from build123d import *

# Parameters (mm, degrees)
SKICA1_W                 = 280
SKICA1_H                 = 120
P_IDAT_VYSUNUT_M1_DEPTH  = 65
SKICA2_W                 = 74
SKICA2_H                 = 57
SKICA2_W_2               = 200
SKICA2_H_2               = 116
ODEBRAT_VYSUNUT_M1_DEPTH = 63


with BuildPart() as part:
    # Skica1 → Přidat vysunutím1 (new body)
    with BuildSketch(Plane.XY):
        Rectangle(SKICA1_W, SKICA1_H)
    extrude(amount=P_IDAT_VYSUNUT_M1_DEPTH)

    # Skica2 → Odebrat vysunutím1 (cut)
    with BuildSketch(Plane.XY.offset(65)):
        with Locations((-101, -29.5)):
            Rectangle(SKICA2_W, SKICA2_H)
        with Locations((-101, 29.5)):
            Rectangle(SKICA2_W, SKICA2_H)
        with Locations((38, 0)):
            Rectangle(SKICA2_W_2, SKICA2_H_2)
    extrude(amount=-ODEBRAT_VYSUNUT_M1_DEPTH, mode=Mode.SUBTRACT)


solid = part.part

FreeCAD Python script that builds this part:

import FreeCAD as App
import Part
import Sketcher
Q = App.Units.Quantity


def add_polygon(sketch, points):
    """Adds a closed chain of lines whose ends are joined by coincident constraints."""
    first, n = sketch.GeometryCount, len(points)
    for a, b in zip(points, points[1:] + points[:1]):
        sketch.addGeometry(Part.LineSegment(App.Vector(*a, 0), App.Vector(*b, 0)), False)
    for i in range(n):
        sketch.addConstraint(Sketcher.Constraint("Coincident", first + i, 2, first + (i + 1) % n, 1))

doc = App.newDocument("Part")
body = doc.addObject("PartDesign::Body", "Body")

sketch1 = body.newObject("Sketcher::SketchObject", "Sketch")
sketch1.AttachmentSupport = (doc.getObject("XY_Plane"), [""])
sketch1.MapMode = "FlatFace"
add_polygon(sketch1, [(-140, 60), (-140, -60), (140, -60), (140, 60)])
sketch1.addConstraint([
    Sketcher.Constraint("Vertical", 0),
    Sketcher.Constraint("Horizontal", 1),
    Sketcher.Constraint("Vertical", 2),
    Sketcher.Constraint("Horizontal", 3),
    Sketcher.Constraint("Symmetric", 0, 2, 2, 2, -1, 1),
    Sketcher.Constraint("DistanceX", 1, 1, 1, 2, Q("280 mm")),
    Sketcher.Constraint("DistanceY", 0, 2, 0, 1, Q("120 mm")),
])
pad1 = body.newObject("PartDesign::Pad", "Pad")
pad1.Profile = sketch1
pad1.Length = 65

sketch2 = body.newObject("Sketcher::SketchObject", "Sketch001")
sketch2.AttachmentSupport = (doc.getObject("XY_Plane"), [""])
sketch2.MapMode = "FlatFace"
sketch2.AttachmentOffset = App.Placement(App.Vector(0, 0, 65), App.Rotation())
add_polygon(sketch2, [(-138, -1), (-138, -58), (-64, -58), (-64, -1)])
add_polygon(sketch2, [(-138, 58), (-138, 1), (-64, 1), (-64, 58)])
add_polygon(sketch2, [(-62, 58), (-62, -58), (138, -58), (138, 58)])
sketch2.addConstraint([
    Sketcher.Constraint("Vertical", 0),
    Sketcher.Constraint("Horizontal", 1),
    Sketcher.Constraint("Vertical", 2),
    Sketcher.Constraint("Horizontal", 3),
    Sketcher.Constraint("Vertical", 4),
    Sketcher.Constraint("Horizontal", 5),
    Sketcher.Constraint("Vertical", 6),
    Sketcher.Constraint("Horizontal", 7),
    Sketcher.Constraint("Vertical", 8),
    Sketcher.Constraint("Horizontal", 9),
    Sketcher.Constraint("Vertical", 10),
    Sketcher.Constraint("Horizontal", 11),
    Sketcher.Constraint("Symmetric", 7, 2, 9, 2, -1, 1),
    Sketcher.Constraint("Symmetric", 0, 2, 10, 2, -1, 1),
    Sketcher.Constraint("Symmetric", 2, 2, 5, 2, -1),
    Sketcher.Constraint("Horizontal", 1, 2, 8, 2),
    Sketcher.Constraint("DistanceX", 1, 1, 1, 2, Q("74 mm")),
    Sketcher.Constraint("DistanceX", 9, 1, 9, 2, Q("200 mm")),
    Sketcher.Constraint("DistanceY", 0, 2, 0, 1, Q("57 mm")),
    Sketcher.Constraint("DistanceY", 8, 2, 8, 1, Q("116 mm")),
    Sketcher.Constraint("DistanceX", 0, 2, -1, 1, Q("138 mm")),
])
pocket1 = body.newObject("PartDesign::Pocket", "Pocket")
pocket1.Profile = sketch2
pocket1.Length = 63

doc.recompute()
